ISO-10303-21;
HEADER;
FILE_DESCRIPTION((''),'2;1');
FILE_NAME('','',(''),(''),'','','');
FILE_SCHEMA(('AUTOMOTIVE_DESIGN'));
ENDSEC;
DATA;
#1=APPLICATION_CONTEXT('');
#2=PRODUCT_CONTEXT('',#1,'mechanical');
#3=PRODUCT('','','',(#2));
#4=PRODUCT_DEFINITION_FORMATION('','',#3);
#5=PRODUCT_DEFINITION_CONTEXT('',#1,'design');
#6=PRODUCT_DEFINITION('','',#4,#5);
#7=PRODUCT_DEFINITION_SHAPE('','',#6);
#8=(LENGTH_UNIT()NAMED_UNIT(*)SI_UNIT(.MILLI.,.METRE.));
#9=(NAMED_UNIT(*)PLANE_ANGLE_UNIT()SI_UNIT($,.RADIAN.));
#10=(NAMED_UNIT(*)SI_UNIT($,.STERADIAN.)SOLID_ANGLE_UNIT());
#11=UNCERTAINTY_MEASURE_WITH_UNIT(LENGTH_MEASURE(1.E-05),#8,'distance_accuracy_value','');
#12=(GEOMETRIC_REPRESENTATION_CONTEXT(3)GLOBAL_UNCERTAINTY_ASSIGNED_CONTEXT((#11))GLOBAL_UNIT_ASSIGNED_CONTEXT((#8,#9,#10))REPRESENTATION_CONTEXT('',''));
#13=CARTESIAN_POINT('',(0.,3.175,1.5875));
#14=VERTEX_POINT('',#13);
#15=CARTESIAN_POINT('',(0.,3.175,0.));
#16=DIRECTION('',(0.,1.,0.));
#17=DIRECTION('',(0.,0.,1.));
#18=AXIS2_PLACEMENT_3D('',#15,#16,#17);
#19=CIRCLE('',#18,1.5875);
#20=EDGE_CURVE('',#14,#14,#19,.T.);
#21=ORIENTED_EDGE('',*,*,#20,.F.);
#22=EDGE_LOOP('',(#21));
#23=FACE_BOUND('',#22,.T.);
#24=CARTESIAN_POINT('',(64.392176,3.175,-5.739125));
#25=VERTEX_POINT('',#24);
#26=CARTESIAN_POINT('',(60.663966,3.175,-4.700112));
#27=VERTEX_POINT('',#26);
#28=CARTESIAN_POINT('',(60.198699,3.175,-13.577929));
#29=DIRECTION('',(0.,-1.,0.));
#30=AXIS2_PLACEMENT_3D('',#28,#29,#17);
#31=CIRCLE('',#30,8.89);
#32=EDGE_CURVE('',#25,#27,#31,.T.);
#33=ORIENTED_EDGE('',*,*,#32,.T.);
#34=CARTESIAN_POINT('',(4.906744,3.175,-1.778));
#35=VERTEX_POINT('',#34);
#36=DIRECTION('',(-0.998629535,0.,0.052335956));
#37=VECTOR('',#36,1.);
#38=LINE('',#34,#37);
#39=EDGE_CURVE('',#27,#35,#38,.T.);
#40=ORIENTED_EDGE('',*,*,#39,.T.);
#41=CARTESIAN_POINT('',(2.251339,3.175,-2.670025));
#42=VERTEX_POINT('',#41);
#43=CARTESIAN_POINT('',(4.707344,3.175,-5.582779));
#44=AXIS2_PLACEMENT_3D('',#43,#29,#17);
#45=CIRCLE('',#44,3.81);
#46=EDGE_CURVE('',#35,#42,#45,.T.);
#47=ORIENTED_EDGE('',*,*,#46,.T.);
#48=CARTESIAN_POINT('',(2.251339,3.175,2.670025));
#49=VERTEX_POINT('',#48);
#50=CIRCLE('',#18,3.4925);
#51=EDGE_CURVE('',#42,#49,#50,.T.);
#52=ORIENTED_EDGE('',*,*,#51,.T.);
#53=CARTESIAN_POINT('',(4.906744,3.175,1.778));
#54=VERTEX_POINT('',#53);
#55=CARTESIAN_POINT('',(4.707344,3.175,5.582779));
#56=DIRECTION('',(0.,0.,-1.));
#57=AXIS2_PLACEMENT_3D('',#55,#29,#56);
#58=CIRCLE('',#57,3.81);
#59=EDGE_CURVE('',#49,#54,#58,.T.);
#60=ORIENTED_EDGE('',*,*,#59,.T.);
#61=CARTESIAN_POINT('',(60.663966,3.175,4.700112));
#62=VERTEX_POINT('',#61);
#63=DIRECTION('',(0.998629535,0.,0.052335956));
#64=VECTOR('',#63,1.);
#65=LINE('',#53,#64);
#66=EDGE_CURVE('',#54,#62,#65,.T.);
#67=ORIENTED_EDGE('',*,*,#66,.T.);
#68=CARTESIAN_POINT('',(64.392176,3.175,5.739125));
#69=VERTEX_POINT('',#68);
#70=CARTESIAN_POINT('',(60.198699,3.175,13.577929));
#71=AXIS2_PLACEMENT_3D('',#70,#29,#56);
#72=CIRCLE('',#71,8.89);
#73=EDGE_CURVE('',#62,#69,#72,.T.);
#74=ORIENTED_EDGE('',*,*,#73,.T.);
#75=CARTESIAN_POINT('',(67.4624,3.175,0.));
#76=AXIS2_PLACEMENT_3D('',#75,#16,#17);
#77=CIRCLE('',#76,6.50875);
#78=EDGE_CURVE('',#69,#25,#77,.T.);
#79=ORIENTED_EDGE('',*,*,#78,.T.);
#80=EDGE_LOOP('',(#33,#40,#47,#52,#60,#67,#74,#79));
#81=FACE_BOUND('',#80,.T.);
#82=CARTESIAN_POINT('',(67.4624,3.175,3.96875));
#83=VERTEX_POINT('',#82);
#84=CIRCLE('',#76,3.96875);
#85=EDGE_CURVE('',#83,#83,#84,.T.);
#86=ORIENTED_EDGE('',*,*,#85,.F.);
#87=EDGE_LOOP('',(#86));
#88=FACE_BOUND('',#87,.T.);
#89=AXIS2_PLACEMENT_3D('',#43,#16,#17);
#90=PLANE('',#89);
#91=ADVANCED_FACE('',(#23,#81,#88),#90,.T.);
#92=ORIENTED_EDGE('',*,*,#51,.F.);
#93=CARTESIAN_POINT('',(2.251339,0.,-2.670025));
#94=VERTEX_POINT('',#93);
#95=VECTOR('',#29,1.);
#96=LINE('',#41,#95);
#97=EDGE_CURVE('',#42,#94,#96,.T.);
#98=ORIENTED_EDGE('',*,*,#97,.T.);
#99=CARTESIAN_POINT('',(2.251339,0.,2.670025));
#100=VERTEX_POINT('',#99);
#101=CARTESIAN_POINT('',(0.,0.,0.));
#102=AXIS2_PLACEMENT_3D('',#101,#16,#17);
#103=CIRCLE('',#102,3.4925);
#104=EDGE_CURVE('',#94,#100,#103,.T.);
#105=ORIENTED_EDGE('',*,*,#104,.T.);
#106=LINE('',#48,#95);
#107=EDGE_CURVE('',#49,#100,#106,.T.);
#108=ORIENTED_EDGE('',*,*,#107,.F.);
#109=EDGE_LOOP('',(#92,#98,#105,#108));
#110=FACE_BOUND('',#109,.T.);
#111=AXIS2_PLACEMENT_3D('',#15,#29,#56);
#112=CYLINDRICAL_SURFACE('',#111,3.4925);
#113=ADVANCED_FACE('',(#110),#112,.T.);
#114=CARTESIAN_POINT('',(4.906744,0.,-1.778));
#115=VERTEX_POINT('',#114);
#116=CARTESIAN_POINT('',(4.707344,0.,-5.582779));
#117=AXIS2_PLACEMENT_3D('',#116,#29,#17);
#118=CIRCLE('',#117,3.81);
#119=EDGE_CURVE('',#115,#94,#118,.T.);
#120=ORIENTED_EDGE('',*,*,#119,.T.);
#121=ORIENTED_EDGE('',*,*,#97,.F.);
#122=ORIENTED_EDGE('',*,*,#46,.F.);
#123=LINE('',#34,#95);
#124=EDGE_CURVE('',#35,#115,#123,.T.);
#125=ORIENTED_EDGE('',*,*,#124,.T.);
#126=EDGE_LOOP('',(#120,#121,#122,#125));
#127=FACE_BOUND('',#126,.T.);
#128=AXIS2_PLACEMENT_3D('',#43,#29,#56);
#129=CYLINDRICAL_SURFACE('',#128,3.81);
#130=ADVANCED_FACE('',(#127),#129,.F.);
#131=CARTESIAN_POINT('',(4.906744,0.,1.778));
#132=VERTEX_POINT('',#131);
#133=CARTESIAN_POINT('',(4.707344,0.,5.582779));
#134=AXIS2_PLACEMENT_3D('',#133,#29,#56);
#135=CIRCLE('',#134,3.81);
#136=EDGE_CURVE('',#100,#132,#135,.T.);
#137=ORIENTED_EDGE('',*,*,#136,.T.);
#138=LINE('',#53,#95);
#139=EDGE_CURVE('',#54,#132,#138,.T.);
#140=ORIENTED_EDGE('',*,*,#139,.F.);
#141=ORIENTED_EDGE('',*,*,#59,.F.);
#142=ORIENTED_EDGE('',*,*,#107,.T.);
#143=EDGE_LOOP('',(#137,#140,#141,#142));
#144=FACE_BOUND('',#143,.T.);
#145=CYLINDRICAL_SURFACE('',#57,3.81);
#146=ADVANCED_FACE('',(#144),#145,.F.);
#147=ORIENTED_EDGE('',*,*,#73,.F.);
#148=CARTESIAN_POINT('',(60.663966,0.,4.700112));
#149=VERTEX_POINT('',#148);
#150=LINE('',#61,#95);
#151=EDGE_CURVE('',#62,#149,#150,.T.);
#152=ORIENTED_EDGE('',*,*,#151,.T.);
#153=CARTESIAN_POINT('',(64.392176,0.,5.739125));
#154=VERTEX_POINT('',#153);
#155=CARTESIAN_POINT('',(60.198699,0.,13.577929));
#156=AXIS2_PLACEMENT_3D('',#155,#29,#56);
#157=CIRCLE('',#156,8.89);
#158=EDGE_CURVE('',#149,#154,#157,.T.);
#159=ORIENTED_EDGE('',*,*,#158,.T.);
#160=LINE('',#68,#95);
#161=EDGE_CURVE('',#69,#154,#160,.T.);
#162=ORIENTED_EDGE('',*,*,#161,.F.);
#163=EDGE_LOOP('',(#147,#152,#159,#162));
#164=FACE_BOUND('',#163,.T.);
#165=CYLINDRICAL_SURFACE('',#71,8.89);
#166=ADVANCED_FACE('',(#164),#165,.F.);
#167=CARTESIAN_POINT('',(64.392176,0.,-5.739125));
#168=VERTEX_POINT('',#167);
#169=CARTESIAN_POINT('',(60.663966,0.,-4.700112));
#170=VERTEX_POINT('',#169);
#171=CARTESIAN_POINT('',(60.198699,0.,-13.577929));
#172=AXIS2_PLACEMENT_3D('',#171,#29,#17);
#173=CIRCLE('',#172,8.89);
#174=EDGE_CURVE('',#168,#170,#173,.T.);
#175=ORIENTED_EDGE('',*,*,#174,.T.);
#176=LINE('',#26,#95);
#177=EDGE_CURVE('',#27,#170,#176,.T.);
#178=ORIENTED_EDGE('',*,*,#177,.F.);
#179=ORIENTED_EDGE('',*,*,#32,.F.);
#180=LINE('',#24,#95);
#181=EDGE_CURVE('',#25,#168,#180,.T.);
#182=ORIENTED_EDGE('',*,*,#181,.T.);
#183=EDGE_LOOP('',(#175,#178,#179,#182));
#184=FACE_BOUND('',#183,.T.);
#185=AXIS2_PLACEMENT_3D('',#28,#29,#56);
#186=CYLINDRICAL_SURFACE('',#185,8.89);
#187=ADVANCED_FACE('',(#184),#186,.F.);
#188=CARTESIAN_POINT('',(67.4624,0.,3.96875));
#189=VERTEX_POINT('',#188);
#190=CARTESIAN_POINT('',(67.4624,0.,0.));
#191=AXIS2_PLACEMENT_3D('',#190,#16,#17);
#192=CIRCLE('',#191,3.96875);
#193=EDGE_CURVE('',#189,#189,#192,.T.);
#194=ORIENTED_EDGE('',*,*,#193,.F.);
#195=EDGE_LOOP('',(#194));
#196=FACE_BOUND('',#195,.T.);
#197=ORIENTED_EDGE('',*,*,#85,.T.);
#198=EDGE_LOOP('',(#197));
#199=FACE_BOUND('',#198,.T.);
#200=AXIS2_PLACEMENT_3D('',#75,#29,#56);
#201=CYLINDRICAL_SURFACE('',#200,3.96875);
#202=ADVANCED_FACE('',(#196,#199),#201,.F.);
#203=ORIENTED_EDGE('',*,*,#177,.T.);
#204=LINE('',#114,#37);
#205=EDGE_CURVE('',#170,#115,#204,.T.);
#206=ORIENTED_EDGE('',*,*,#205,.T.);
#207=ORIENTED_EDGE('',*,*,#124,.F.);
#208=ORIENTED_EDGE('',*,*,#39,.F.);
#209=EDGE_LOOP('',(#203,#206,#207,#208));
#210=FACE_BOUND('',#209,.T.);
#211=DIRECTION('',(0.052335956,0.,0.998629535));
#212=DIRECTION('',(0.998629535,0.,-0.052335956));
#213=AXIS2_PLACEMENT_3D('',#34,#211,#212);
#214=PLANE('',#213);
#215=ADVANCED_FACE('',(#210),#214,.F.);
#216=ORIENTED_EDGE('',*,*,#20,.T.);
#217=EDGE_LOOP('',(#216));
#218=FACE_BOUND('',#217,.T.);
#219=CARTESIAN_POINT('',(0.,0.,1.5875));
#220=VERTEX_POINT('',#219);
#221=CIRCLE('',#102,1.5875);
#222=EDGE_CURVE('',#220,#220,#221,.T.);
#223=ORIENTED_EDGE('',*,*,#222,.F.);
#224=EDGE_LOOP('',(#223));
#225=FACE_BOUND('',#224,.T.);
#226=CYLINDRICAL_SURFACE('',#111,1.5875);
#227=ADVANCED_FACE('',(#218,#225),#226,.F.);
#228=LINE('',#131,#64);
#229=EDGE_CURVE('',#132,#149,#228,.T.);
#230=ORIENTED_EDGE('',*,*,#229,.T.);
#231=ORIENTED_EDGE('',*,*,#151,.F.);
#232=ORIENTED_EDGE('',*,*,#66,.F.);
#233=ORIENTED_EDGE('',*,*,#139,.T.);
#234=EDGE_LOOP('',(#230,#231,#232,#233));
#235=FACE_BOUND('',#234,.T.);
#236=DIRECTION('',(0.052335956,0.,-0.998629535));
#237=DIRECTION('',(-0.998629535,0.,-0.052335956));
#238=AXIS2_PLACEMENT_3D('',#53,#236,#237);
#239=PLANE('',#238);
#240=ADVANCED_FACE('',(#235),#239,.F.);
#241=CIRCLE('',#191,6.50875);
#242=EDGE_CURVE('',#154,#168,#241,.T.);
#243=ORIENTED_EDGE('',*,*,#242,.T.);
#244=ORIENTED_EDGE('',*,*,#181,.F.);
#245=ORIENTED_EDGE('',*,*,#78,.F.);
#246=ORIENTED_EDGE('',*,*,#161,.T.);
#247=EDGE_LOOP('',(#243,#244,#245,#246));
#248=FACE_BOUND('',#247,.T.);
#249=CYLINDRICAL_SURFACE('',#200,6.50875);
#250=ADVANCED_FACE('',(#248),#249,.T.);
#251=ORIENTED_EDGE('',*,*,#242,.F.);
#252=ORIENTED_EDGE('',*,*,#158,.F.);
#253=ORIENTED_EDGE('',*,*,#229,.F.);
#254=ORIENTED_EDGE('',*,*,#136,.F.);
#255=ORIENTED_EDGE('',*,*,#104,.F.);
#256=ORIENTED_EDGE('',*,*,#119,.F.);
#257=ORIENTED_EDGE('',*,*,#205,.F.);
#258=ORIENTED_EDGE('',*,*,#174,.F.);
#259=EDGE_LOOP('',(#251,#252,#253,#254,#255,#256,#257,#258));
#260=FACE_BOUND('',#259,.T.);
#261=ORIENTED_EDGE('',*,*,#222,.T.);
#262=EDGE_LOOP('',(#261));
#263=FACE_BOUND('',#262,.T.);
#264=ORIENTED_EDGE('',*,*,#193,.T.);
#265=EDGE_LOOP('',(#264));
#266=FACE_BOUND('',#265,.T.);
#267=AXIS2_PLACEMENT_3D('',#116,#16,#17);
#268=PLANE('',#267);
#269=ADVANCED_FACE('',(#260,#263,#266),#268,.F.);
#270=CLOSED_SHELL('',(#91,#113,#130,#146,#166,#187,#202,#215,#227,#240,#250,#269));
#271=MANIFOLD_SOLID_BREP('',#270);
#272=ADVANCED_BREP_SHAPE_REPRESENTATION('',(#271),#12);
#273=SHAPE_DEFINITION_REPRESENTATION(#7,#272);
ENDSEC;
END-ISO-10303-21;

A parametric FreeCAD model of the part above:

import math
import FreeCAD as App
import Part
import Sketcher

V = App.Vector
Q = App.Units.Quantity

doc = App.newDocument("Part")
body = doc.addObject("PartDesign::Body", "Body")

sketch1 = body.newObject("Sketcher::SketchObject", "Sketch")
sketch1.AttachmentSupport = (doc.getObject("XZ_Plane"), [""])
sketch1.MapMode = "FlatFace"
sketch1.addGeometry(Part.LineSegment(V(60.7, -4.7, 0), V(4.9, -1.8, 0)), False)
sketch1.addGeometry(Part.ArcOfCircle(Part.Circle(V(4.7, -5.6, 0), V(0, 0, 1), 3.8), math.radians(87), math.radians(130)), False)
sketch1.addGeometry(Part.ArcOfCircle(Part.Circle(V(0, 0, 0), V(0, 0, 1), 3.5), math.radians(50), math.radians(310)), False)
sketch1.addGeometry(Part.ArcOfCircle(Part.Circle(V(4.7, 5.6, 0), V(0, 0, 1), 3.8), math.radians(-130), math.radians(-87)), False)
sketch1.addGeometry(Part.LineSegment(V(4.9, 1.8, 0), V(60.7, 4.7, 0)), False)
sketch1.addGeometry(Part.ArcOfCircle(Part.Circle(V(60.2, 13.6, 0), V(0, 0, 1), 8.9), math.radians(-87), math.radians(-62)), False)
sketch1.addGeometry(Part.ArcOfCircle(Part.Circle(V(67.5, 0, 0), V(0, 0, 1), 6.5), math.radians(-118), math.radians(118)), False)
sketch1.addGeometry(Part.ArcOfCircle(Part.Circle(V(60.2, -13.6, 0), V(0, 0, 1), 8.9), math.radians(62), math.radians(87)), False)
sketch1.addGeometry(Part.Circle(V(67.5, 0, 0), V(0, 0, 1), 4), False)
sketch1.addGeometry(Part.Circle(V(0, 0, 0), V(0, 0, 1), 1.6), False)
sketch1.addConstraint(Sketcher.Constraint("Tangent", 0, 2, 1, 1))
sketch1.addConstraint(Sketcher.Constraint("Tangent", 1, 2, 2, 2))
sketch1.addConstraint(Sketcher.Constraint("Tangent", 2, 1, 3, 1))
sketch1.addConstraint(Sketcher.Constraint("Tangent", 3, 2, 4, 1))
sketch1.addConstraint(Sketcher.Constraint("Tangent", 4, 2, 5, 1))
sketch1.addConstraint(Sketcher.Constraint("Tangent", 5, 2, 6, 2))
sketch1.addConstraint(Sketcher.Constraint("Tangent", 6, 1, 7, 1))
sketch1.addConstraint(Sketcher.Constraint("Tangent", 7, 2, 0, 1))
sketch1.addConstraint(Sketcher.Constraint("Coincident", 2, 3, -1, 1))
sketch1.addConstraint(Sketcher.Constraint("Coincident", 9, 3, -1, 1))
sketch1.addConstraint(Sketcher.Constraint("Coincident", 8, 3, 6, 3))
sketch1.addConstraint(Sketcher.Constraint("Equal", 1, 3))
sketch1.addConstraint(Sketcher.Constraint("Equal", 5, 7))
sketch1.addConstraint(Sketcher.Constraint("Symmetric", 5, 3, 7, 3, -1))
sketch1.addConstraint(Sketcher.Constraint("Vertical", 1, 3, 3, 3))
sketch1.addConstraint(Sketcher.Constraint("Radius", 1, Q("0.15 in")))
sketch1.addConstraint(Sketcher.Constraint("Radius", 5, Q("0.35 in")))
sketch1.addConstraint(Sketcher.Constraint("Diameter", 8, Q("0.3125 in")))
sketch1.addConstraint(Sketcher.Constraint("Diameter", 9, Q("0.125 in")))
sketch1.addConstraint(Sketcher.Constraint("Angle", 0, Q("177 deg")))
sketch1.addConstraint(Sketcher.Constraint("Radius", 2, Q("0.1375 in")))
sketch1.addConstraint(Sketcher.Constraint("DistanceY", 0, 2, -1, 1, Q("0.07 in")))
sketch1.addConstraint(Sketcher.Constraint("DistanceX", -1, 1, 6, 3, Q("2.656 in")))
sketch1.addConstraint(Sketcher.Constraint("Radius", 6, Q("6.50875 mm")))
pad1 = body.newObject("PartDesign::Pad", "Pad")
pad1.Profile = sketch1
pad1.Length = Q("0.125 in")
pad1.Reversed = True

doc.recompute()
